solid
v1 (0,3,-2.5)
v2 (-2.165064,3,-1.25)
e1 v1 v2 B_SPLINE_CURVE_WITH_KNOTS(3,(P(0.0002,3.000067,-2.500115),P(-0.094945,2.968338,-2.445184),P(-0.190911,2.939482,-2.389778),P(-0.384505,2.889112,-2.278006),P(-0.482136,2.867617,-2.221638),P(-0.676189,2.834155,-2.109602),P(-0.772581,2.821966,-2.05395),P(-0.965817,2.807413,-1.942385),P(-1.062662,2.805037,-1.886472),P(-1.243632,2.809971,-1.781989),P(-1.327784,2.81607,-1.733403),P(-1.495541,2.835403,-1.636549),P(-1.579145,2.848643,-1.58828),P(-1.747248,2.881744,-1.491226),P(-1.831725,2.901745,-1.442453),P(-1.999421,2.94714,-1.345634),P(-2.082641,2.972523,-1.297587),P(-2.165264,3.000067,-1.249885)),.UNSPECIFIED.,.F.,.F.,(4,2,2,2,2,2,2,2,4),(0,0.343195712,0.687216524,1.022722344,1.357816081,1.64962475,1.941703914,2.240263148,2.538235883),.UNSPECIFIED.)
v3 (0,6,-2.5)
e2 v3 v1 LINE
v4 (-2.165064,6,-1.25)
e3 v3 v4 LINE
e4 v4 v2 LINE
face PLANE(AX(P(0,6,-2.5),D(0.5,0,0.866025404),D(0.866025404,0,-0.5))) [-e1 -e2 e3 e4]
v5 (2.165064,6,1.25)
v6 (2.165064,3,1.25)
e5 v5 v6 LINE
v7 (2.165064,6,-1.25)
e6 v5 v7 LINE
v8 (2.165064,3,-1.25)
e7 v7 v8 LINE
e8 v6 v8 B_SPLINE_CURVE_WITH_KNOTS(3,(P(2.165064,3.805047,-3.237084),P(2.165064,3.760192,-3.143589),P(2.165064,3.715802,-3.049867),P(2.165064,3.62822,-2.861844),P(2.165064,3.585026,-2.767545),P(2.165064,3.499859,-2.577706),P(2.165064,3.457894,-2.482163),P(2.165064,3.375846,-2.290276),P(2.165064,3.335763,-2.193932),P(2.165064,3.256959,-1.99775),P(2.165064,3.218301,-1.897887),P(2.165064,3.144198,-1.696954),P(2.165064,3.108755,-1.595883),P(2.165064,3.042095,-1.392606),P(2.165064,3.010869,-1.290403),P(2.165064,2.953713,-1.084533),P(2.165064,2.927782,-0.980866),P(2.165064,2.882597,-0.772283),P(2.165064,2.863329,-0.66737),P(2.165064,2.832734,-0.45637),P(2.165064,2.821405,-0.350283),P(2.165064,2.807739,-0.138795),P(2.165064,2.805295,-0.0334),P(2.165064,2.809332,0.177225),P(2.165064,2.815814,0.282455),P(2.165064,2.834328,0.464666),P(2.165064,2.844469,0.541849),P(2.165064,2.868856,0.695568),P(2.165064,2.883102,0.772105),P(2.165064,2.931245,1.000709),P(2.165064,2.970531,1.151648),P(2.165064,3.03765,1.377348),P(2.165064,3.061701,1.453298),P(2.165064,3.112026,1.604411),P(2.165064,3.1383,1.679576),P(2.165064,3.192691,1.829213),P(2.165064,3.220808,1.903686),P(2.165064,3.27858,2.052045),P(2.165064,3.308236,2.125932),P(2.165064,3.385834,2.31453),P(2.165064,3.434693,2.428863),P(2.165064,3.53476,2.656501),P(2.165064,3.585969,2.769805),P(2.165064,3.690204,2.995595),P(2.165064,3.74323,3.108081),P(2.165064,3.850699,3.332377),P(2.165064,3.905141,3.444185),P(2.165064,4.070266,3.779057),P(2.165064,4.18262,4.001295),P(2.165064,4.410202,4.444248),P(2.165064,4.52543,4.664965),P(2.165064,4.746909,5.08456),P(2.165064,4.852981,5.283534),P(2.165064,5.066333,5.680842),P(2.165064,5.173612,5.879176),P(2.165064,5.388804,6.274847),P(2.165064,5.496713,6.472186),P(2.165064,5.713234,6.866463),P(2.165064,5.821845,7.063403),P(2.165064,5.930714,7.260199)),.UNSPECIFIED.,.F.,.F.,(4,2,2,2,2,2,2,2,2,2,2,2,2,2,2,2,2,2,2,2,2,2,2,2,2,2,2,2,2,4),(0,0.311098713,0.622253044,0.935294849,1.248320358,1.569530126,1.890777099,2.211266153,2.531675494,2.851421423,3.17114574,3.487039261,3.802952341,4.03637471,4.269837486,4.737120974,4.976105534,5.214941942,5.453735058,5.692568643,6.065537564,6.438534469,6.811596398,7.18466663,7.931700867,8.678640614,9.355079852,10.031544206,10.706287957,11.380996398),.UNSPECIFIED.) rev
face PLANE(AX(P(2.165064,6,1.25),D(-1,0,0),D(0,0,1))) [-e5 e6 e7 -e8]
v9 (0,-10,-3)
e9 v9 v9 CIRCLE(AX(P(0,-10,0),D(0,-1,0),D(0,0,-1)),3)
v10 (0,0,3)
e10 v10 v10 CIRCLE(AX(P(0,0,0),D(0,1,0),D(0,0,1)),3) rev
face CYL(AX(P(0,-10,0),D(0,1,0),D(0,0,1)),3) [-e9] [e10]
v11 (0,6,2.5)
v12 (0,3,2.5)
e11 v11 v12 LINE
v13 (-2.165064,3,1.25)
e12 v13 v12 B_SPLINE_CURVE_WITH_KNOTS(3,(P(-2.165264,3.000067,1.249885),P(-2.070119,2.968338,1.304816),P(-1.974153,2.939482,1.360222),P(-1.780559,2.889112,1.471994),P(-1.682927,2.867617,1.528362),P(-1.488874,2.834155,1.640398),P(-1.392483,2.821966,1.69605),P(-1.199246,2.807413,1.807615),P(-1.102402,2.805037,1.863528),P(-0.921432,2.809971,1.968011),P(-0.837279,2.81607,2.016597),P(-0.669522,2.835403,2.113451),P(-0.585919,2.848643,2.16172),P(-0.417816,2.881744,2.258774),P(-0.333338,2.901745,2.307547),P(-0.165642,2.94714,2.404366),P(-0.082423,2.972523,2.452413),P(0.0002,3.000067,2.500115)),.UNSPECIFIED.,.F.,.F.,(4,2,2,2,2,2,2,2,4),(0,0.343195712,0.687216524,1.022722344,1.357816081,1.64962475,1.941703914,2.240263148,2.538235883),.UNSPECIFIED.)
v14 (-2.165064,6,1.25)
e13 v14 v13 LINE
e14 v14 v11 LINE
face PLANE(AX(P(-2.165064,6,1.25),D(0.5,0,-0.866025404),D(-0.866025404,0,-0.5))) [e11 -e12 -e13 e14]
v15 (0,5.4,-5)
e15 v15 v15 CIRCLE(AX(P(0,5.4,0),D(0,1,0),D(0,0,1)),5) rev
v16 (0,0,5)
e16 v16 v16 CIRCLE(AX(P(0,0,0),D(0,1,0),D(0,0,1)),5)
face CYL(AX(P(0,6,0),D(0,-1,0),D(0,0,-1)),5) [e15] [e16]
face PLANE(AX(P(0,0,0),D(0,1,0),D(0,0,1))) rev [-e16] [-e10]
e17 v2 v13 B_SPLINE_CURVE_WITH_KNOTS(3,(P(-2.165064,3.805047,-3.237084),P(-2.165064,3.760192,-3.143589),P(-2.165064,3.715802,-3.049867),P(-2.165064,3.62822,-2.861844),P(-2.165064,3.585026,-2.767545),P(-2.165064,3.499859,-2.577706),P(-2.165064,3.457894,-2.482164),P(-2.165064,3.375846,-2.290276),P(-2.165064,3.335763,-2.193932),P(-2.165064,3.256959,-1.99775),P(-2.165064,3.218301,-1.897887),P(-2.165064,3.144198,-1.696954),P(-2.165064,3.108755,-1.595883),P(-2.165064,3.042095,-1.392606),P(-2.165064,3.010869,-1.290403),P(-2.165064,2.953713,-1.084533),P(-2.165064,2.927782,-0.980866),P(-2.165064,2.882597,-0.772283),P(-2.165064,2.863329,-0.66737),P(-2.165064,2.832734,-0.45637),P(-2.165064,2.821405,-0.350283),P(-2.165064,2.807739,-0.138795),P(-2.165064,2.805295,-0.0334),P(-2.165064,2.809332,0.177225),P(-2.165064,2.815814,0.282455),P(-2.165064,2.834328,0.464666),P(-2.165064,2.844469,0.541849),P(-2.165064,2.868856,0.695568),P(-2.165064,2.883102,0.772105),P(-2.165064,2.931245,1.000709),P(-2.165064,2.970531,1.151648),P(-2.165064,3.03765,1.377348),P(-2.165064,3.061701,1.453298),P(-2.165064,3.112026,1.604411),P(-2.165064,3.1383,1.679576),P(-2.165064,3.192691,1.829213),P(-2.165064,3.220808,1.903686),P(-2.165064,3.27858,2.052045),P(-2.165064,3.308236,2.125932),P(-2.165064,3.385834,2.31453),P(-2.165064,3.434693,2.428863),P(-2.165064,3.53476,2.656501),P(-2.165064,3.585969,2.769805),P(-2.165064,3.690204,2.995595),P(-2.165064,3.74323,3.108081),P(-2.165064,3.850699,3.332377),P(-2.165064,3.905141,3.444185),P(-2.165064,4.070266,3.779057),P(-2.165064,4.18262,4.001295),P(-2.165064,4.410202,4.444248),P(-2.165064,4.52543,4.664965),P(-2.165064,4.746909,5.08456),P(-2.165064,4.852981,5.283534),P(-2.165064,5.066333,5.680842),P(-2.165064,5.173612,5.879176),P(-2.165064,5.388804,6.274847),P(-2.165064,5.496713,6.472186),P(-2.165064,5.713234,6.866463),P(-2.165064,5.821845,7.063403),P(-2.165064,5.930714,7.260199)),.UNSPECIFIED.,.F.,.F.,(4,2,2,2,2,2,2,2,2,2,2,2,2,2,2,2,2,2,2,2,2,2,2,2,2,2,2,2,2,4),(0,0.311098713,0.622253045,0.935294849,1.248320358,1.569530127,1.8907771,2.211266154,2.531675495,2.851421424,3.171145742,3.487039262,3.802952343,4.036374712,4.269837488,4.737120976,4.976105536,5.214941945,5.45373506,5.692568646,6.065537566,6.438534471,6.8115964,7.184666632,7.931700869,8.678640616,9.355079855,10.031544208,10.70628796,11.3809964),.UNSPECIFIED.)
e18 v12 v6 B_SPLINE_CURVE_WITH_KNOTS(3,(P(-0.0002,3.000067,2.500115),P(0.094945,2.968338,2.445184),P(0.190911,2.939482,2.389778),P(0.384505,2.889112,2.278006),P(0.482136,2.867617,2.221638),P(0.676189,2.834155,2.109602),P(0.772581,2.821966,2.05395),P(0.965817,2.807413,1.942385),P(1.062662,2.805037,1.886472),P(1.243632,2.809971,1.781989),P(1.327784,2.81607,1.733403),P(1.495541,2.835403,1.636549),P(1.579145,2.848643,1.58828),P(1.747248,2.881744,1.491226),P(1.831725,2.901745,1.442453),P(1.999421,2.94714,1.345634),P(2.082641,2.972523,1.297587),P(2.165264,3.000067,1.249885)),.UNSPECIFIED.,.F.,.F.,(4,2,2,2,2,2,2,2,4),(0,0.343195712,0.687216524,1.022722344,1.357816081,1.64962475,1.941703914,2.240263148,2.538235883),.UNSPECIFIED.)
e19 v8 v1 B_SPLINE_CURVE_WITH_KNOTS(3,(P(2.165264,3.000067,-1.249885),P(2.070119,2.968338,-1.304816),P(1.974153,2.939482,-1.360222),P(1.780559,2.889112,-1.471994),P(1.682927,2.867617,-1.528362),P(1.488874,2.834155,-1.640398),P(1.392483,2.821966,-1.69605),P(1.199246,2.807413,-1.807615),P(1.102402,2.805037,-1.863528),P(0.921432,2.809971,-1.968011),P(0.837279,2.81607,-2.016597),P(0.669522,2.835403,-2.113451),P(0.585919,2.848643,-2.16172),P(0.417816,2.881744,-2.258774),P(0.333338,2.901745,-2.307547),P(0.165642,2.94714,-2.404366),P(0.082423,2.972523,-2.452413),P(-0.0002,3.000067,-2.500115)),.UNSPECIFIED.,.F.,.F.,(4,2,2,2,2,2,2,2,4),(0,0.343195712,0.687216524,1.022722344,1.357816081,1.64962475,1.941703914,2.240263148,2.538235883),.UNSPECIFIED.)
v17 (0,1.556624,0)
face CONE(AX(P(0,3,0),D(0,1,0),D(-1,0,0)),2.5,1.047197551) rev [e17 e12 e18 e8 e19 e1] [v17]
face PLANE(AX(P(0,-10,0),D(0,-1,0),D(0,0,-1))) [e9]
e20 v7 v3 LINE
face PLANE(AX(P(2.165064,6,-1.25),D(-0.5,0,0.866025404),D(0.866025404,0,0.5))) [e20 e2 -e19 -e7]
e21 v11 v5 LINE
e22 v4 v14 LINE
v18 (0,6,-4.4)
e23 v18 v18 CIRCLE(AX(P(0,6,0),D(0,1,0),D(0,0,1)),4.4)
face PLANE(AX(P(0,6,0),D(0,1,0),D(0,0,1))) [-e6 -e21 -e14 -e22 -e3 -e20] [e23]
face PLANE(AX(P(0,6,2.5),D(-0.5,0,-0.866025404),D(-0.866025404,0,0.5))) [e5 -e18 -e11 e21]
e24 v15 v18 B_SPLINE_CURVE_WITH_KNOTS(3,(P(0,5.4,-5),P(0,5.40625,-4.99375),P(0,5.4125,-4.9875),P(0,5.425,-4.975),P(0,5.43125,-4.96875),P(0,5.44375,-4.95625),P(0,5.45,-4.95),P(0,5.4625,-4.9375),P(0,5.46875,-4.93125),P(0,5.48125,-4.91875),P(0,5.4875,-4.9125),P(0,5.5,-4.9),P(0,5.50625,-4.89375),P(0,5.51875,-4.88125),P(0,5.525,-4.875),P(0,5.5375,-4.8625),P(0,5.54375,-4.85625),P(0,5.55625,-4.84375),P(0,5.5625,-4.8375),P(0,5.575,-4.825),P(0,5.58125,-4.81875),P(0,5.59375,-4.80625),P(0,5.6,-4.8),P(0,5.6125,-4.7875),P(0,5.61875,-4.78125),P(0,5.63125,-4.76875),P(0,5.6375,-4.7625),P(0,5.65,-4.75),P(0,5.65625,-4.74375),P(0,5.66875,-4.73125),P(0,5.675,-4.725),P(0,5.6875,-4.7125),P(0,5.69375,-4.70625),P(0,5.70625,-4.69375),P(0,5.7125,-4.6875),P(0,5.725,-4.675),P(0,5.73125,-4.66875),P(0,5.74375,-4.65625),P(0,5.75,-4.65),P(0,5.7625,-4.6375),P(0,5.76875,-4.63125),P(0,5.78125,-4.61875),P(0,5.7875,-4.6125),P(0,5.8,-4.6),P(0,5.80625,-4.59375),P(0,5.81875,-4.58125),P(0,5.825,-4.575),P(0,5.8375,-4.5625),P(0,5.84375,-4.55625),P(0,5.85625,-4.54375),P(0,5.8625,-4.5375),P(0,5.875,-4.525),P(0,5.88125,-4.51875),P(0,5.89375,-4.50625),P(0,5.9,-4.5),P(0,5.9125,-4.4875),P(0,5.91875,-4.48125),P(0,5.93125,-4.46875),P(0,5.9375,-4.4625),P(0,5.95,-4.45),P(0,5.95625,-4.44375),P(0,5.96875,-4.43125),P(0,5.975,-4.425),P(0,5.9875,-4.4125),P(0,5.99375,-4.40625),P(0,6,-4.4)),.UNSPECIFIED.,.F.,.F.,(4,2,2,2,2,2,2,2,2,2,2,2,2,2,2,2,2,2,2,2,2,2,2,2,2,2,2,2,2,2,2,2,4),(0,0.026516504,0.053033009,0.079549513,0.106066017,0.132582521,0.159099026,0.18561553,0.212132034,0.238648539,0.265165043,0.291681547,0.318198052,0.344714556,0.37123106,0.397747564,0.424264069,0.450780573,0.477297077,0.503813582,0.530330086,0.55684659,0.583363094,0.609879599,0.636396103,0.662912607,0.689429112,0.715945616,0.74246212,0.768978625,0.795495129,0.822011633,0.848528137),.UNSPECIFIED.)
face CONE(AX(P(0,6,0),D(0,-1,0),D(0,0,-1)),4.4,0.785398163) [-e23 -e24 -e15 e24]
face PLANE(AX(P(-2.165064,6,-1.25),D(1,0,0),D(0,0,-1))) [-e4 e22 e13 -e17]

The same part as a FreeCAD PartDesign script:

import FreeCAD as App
import Part
import Sketcher
Q = App.Units.Quantity


def edges_at(feature, points):
    """Names of the edges that pass closest to the given points."""
    edges = feature.Shape.Edges
    near = lambda p: min(range(len(edges)), key=lambda i: edges[i].distToShape(Part.Vertex(*p))[0])
    return sorted({f"Edge{near(p) + 1}" for p in points})

doc = App.newDocument("Part")
body = doc.addObject("PartDesign::Body", "Body")

# Sketch on XZ plane
sketch1 = body.newObject("Sketcher::SketchObject", "Sketch")
sketch1.AttachmentSupport = (doc.getObject("XZ_Plane"), [""])
sketch1.MapMode = "FlatFace"
sketch1.addGeometry([
    Part.Circle(App.Vector(0, 0, 0), App.Vector(0, 0, 1), 5),  # 0
    Part.LineSegment(App.Vector(-2.2, -1.2, 0), App.Vector(0, -2.5, 0)),  # 1
    Part.LineSegment(App.Vector(0, -2.5, 0), App.Vector(2.2, -1.2, 0)),  # 2
    Part.LineSegment(App.Vector(2.2, -1.2, 0), App.Vector(2.2, 1.2, 0)),  # 3
    Part.LineSegment(App.Vector(2.2, 1.2, 0), App.Vector(0, 2.5, 0)),  # 4
    Part.LineSegment(App.Vector(0, 2.5, 0), App.Vector(-2.2, 1.2, 0)),  # 5
    Part.LineSegment(App.Vector(-2.2, 1.2, 0), App.Vector(-2.2, -1.2, 0)),  # 6
], False)
sketch1.addConstraint([
    Sketcher.Constraint("Coincident", 1, 2, 2, 1),
    Sketcher.Constraint("Coincident", 2, 2, 3, 1),
    Sketcher.Constraint("Coincident", 3, 2, 4, 1),
    Sketcher.Constraint("Coincident", 4, 2, 5, 1),
    Sketcher.Constraint("Coincident", 5, 2, 6, 1),
    Sketcher.Constraint("Coincident", 6, 2, 1, 1),
    Sketcher.Constraint("Vertical", 3),
    Sketcher.Constraint("Vertical", 6),
    Sketcher.Constraint("Coincident", 0, 3, -1, 1),
    Sketcher.Constraint("Symmetric", 1, 2, 4, 2, -1, 1),
    Sketcher.Constraint("Symmetric", 2, 2, 5, 2, -1, 1),
    Sketcher.Constraint("PointOnObject", 1, 2, -2),
    Sketcher.Constraint("Parallel", 1, 4),
    Sketcher.Constraint("Horizontal", 3, 2, 5, 2),
    Sketcher.Constraint("Diameter", 0, 10.0),
    Sketcher.Constraint("Angle", 1, Q("-30 deg")),
    Sketcher.Constraint("DistanceY", 3, 1, 3, 2, 2.5),
    Sketcher.Constraint("DistanceY", 1, 2, 4, 2, 5.0),
])
pad1 = body.newObject("PartDesign::Pad", "Pad")
pad1.Profile = sketch1
pad1.Length = 6
pad1.Reversed = True
doc.recompute()

chamfer = body.newObject("PartDesign::Chamfer", "Chamfer")
chamfer.Base = (pad1, edges_at(pad1, [(0, 6, -5)]))
chamfer.Size = 0.6

# Sketch on XY plane
sketch2 = body.newObject("Sketcher::SketchObject", "Sketch001")
sketch2.AttachmentSupport = (doc.getObject("XY_Plane"), [""])
sketch2.MapMode = "FlatFace"
sketch2.addGeometry([
    Part.LineSegment(App.Vector(0, 1.6, 0), App.Vector(0, 0, 0)),  # 0
    Part.LineSegment(App.Vector(0, 0, 0), App.Vector(5, 0, 0)),  # 1
    Part.LineSegment(App.Vector(5, 0, 0), App.Vector(5, 3, 0)),  # 2
    Part.LineSegment(App.Vector(5, 3, 0), App.Vector(2.5, 3, 0)),  # 3
    Part.LineSegment(App.Vector(2.5, 3, 0), App.Vector(0, 1.6, 0)),  # 4
], False)
sketch2.addConstraint([
    Sketcher.Constraint("Coincident", 0, 2, 1, 1),
    Sketcher.Constraint("Coincident", 1, 2, 2, 1),
    Sketcher.Constraint("Coincident", 2, 2, 3, 1),
    Sketcher.Constraint("Coincident", 3, 2, 4, 1),
    Sketcher.Constraint("Coincident", 4, 2, 0, 1),
    Sketcher.Constraint("Vertical", 0),
    Sketcher.Constraint("Horizontal", 1),
    Sketcher.Constraint("Vertical", 2),
    Sketcher.Constraint("Horizontal", 3),
    Sketcher.Constraint("Coincident", 0, 2, -1, 1),
    Sketcher.Constraint("DistanceX", 1, 1, 1, 2, 5.0),
    Sketcher.Constraint("DistanceY", 2, 1, 2, 2, 3.0),
    Sketcher.Constraint("Angle", 4, Q("-150 deg")),
    Sketcher.Constraint("DistanceX", 3, 2, 3, 1, 2.5),
])
revolution = body.newObject("PartDesign::Revolution", "Revolution")
revolution.Profile = sketch2
revolution.ReferenceAxis = (sketch2, ["V_Axis"])
revolution.Angle = 360

# Sketch on XZ plane
sketch3 = body.newObject("Sketcher::SketchObject", "Sketch002")
sketch3.AttachmentSupport = (doc.getObject("XZ_Plane"), [""])
sketch3.MapMode = "FlatFace"
sketch3.addGeometry(Part.Circle(App.Vector(0, 0, 0), App.Vector(0, 0, 1), 3), False)
sketch3.addConstraint([
    Sketcher.Constraint("Coincident", 0, 3, -1, 1),
    Sketcher.Constraint("Diameter", 0, 6.0),
])
pad2 = body.newObject("PartDesign::Pad", "Pad001")
pad2.Profile = sketch3
pad2.Length = 10

doc.recompute()
